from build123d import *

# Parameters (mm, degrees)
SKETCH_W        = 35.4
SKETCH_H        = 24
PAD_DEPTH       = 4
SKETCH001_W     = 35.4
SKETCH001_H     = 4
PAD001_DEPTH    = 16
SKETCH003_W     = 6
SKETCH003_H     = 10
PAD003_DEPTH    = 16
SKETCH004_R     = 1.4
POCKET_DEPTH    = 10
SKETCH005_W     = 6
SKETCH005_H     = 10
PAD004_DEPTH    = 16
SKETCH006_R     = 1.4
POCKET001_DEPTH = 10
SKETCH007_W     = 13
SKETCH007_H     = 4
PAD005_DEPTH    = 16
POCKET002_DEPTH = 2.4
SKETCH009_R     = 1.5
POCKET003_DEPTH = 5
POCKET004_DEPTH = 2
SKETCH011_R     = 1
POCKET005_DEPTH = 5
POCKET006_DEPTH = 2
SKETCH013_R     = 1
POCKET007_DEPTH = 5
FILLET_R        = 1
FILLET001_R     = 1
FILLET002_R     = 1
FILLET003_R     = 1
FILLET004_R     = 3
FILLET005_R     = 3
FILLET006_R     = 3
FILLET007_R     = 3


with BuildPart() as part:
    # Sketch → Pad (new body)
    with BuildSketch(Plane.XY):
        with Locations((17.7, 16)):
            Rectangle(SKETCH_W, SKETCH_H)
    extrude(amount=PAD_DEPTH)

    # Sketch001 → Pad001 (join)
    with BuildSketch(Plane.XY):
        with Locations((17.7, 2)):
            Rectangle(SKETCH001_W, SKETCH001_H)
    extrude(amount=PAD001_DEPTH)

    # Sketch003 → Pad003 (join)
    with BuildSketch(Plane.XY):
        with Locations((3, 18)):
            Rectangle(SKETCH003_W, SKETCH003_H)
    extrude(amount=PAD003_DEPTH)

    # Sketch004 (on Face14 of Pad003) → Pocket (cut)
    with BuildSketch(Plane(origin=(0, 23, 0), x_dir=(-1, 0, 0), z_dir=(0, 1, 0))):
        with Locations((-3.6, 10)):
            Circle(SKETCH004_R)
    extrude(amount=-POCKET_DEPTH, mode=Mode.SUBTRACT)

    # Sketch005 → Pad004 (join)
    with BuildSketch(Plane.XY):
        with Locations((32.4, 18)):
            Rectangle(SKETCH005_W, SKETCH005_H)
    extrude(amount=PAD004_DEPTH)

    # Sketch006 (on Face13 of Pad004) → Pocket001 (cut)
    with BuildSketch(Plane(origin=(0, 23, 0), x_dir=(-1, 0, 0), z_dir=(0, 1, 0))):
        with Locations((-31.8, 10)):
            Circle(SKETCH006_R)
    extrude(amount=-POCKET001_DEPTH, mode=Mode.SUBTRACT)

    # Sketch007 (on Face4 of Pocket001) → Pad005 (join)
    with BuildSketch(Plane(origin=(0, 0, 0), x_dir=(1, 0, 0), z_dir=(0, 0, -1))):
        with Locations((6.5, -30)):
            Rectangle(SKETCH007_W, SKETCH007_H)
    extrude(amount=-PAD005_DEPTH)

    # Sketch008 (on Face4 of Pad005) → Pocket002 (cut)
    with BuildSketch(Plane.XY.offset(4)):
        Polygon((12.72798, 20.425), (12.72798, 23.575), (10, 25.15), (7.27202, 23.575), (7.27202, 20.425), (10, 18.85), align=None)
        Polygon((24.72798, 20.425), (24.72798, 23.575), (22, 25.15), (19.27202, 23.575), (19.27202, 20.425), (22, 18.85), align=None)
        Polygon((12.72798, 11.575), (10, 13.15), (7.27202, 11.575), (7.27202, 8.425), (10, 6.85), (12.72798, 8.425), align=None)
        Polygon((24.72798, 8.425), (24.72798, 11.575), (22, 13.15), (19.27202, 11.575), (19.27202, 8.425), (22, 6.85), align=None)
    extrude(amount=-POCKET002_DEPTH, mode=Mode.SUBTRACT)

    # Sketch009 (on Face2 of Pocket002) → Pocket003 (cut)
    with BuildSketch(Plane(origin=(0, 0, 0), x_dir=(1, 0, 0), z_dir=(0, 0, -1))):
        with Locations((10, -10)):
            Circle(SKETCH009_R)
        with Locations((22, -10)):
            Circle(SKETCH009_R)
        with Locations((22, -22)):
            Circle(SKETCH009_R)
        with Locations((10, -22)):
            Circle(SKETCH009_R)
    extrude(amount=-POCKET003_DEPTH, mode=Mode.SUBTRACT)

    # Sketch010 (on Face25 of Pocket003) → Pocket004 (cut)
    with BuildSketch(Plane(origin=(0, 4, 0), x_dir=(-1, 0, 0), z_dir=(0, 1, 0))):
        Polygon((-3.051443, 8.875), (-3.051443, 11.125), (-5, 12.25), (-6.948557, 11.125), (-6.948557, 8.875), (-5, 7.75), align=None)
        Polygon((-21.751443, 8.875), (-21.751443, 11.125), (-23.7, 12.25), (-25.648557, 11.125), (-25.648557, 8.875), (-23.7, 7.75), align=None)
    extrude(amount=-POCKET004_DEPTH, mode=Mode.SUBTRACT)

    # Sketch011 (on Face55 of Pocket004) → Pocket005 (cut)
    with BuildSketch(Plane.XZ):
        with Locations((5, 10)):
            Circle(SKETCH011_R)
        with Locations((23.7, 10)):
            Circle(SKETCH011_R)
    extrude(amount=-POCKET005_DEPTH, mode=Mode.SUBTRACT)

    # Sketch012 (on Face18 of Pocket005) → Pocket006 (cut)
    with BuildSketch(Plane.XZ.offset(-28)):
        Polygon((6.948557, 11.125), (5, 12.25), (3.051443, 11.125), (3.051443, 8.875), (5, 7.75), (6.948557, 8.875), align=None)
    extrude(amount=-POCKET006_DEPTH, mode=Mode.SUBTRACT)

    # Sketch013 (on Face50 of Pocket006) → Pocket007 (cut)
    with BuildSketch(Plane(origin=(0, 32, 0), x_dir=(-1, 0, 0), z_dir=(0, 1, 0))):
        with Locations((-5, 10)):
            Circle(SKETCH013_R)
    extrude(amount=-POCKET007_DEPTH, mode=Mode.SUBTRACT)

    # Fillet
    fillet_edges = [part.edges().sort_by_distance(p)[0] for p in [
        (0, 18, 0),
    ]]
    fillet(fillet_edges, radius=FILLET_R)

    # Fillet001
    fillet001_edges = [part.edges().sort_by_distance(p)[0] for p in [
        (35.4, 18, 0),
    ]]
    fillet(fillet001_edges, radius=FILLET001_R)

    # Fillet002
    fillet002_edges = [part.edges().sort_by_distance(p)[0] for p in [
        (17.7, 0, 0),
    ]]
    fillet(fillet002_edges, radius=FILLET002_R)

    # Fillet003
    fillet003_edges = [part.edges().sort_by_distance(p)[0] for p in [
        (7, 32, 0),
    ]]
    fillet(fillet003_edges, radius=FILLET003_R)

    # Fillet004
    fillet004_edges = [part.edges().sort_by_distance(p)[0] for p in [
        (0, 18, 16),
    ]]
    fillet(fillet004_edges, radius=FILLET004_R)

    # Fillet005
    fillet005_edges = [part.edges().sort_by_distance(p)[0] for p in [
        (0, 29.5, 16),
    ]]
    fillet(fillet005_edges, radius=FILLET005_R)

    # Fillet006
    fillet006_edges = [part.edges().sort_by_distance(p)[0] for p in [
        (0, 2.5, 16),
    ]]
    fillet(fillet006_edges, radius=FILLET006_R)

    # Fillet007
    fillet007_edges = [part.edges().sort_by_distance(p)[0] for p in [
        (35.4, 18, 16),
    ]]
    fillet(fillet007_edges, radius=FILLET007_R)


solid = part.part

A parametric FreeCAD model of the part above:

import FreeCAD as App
import Part
import Sketcher
Q = App.Units.Quantity


def edges_at(feature, points):
    """Names of the edges that pass closest to the given points."""
    edges = feature.Shape.Edges
    near = lambda p: min(range(len(edges)), key=lambda i: edges[i].distToShape(Part.Vertex(*p))[0])
    return sorted({f"Edge{near(p) + 1}" for p in points})

doc = App.newDocument("Part")
body = doc.addObject("PartDesign::Body", "Body")

# Sketch on XY plane
sketch1 = body.newObject("Sketcher::SketchObject", "Sketch")
sketch1.AttachmentSupport = (doc.getObject("XY_Plane"), [""])
sketch1.MapMode = "FlatFace"
sketch1.addGeometry([
    Part.LineSegment(App.Vector(0, 28, 0), App.Vector(0, 4, 0)),
    Part.LineSegment(App.Vector(0, 4, 0), App.Vector(35, 4, 0)),
    Part.LineSegment(App.Vector(35, 4, 0), App.Vector(35, 28, 0)),
    Part.LineSegment(App.Vector(35, 28, 0), App.Vector(0, 28, 0)),
], False)
sketch1.addConstraint([
    Sketcher.Constraint("Coincident", 0, 2, 1, 1),
    Sketcher.Constraint("Coincident", 1, 2, 2, 1),
    Sketcher.Constraint("Coincident", 2, 2, 3, 1),
    Sketcher.Constraint("Coincident", 3, 2, 0, 1),
    Sketcher.Constraint("Vertical", 0),
    Sketcher.Constraint("Horizontal", 1),
    Sketcher.Constraint("Vertical", 2),
    Sketcher.Constraint("Horizontal", 3),
    Sketcher.Constraint("PointOnObject", 0, 2, -2),
    Sketcher.Constraint("DistanceY", 0, 2, 0, 1, 24.0),
    Sketcher.Constraint("DistanceX", 1, 1, 1, 2, 35.4),
    Sketcher.Constraint("DistanceY", -1, 1, 0, 2, 4.0),
])
pad1 = body.newObject("PartDesign::Pad", "Pad")
pad1.Profile = sketch1
pad1.Length = 4

# Sketch on XY plane
sketch2 = body.newObject("Sketcher::SketchObject", "Sketch001")
sketch2.AttachmentSupport = (doc.getObject("XY_Plane"), [""])
sketch2.MapMode = "FlatFace"
sketch2.addGeometry([
    Part.LineSegment(App.Vector(0, 4, 0), App.Vector(0, 0, 0)),
    Part.LineSegment(App.Vector(0, 0, 0), App.Vector(35.4, 0, 0)),
    Part.LineSegment(App.Vector(35.4, 0, 0), App.Vector(35.4, 4, 0)),
    Part.LineSegment(App.Vector(35.4, 4, 0), App.Vector(0, 4, 0)),
], False)
sketch2.addConstraint([
    Sketcher.Constraint("Coincident", 0, 2, 1, 1),
    Sketcher.Constraint("Coincident", 1, 2, 2, 1),
    Sketcher.Constraint("Coincident", 2, 2, 3, 1),
    Sketcher.Constraint("Coincident", 3, 2, 0, 1),
    Sketcher.Constraint("Vertical", 0),
    Sketcher.Constraint("Horizontal", 1),
    Sketcher.Constraint("Vertical", 2),
    Sketcher.Constraint("Horizontal", 3),
    Sketcher.Constraint("Coincident", 0, 2, -1, 1),
    Sketcher.Constraint("DistanceY", 0, 2, 0, 1, 4.0),
    Sketcher.Constraint("DistanceX", 1, 1, 1, 2, 35.4),
])
pad2 = body.newObject("PartDesign::Pad", "Pad001")
pad2.Profile = sketch2
pad2.Length = 16

# Sketch on XY plane
sketch3 = body.newObject("Sketcher::SketchObject", "Sketch002")
sketch3.AttachmentSupport = (doc.getObject("XY_Plane"), [""])
sketch3.MapMode = "FlatFace"
sketch3.addGeometry([
    Part.LineSegment(App.Vector(0, 23, 0), App.Vector(0, 13, 0)),
    Part.LineSegment(App.Vector(0, 13, 0), App.Vector(6, 13, 0)),
    Part.LineSegment(App.Vector(6, 13, 0), App.Vector(6, 23, 0)),
    Part.LineSegment(App.Vector(6, 23, 0), App.Vector(0, 23, 0)),
], False)
sketch3.addConstraint([
    Sketcher.Constraint("Coincident", 0, 2, 1, 1),
    Sketcher.Constraint("Coincident", 1, 2, 2, 1),
    Sketcher.Constraint("Coincident", 2, 2, 3, 1),
    Sketcher.Constraint("Coincident", 3, 2, 0, 1),
    Sketcher.Constraint("Vertical", 0),
    Sketcher.Constraint("Horizontal", 1),
    Sketcher.Constraint("Vertical", 2),
    Sketcher.Constraint("Horizontal", 3),
    Sketcher.Constraint("PointOnObject", 0, 2, -2),
    Sketcher.Constraint("DistanceX", 1, 1, 1, 2, 6.0),
    Sketcher.Constraint("DistanceY", 0, 2, 0, 1, 10.0),
    Sketcher.Constraint("DistanceY", -1, 1, 0, 2, 13.0),
])
pad3 = body.newObject("PartDesign::Pad", "Pad002")
pad3.Profile = sketch3
pad3.Length = 16

# Sketch on XZ plane
sketch4 = body.newObject("Sketcher::SketchObject", "Sketch003")
sketch4.AttachmentSupport = (doc.getObject("XZ_Plane"), [""])
sketch4.MapMode = "FlatFace"
sketch4.AttachmentOffset = App.Placement(App.Vector(0, 0, -23), App.Rotation())
sketch4.addGeometry(Part.Circle(App.Vector(3.6, 10, 0), App.Vector(0, 0, 1), 1.4), False)
sketch4.addConstraint([
    Sketcher.Constraint("Diameter", 0, 2.8),
    Sketcher.Constraint("DistanceY", -1, 1, 0, 3, 10.0),
    Sketcher.Constraint("DistanceX", -1, 1, 0, 3, 3.6),
])
pocket1 = body.newObject("PartDesign::Pocket", "Pocket")
pocket1.Profile = sketch4
pocket1.Length = 10
pocket1.Reversed = True

# Sketch on XY plane
sketch5 = body.newObject("Sketcher::SketchObject", "Sketch004")
sketch5.AttachmentSupport = (doc.getObject("XY_Plane"), [""])
sketch5.MapMode = "FlatFace"
sketch5.addGeometry([
    Part.LineSegment(App.Vector(29, 23, 0), App.Vector(29, 13, 0)),
    Part.LineSegment(App.Vector(29, 13, 0), App.Vector(35, 13, 0)),
    Part.LineSegment(App.Vector(35, 13, 0), App.Vector(35, 23, 0)),
    Part.LineSegment(App.Vector(35, 23, 0), App.Vector(29, 23, 0)),
], False)
sketch5.addConstraint([
    Sketcher.Constraint("Coincident", 0, 2, 1, 1),
    Sketcher.Constraint("Coincident", 1, 2, 2, 1),
    Sketcher.Constraint("Coincident", 2, 2, 3, 1),
    Sketcher.Constraint("Coincident", 3, 2, 0, 1),
    Sketcher.Constraint("Vertical", 0),
    Sketcher.Constraint("Horizontal", 1),
    Sketcher.Constraint("Vertical", 2),
    Sketcher.Constraint("Horizontal", 3),
    Sketcher.Constraint("DistanceX", 1, 1, 1, 2, 6.0),
    Sketcher.Constraint("DistanceY", 0, 2, 0, 1, 10.0),
    Sketcher.Constraint("DistanceY", -1, 1, 0, 2, 13.0),
    Sketcher.Constraint("DistanceX", -1, 1, 0, 2, 29.4),
])
pad4 = body.newObject("PartDesign::Pad", "Pad003")
pad4.Profile = sketch5
pad4.Length = 16

# Sketch on XZ plane
sketch6 = body.newObject("Sketcher::SketchObject", "Sketch005")
sketch6.AttachmentSupport = (doc.getObject("XZ_Plane"), [""])
sketch6.MapMode = "FlatFace"
sketch6.AttachmentOffset = App.Placement(App.Vector(0, 0, -23), App.Rotation())
sketch6.addGeometry(Part.Circle(App.Vector(31.8, 10, 0), App.Vector(0, 0, 1), 1.4), False)
sketch6.addConstraint([
    Sketcher.Constraint("Diameter", 0, 2.8),
    Sketcher.Constraint("DistanceY", -1, 1, 0, 3, 10.0),
    Sketcher.Constraint("DistanceX", -1, 1, 0, 3, 31.8),
])
pocket2 = body.newObject("PartDesign::Pocket", "Pocket001")
pocket2.Profile = sketch6
pocket2.Length = 10
pocket2.Reversed = True

# Sketch on XY plane
sketch7 = body.newObject("Sketcher::SketchObject", "Sketch006")
sketch7.AttachmentSupport = (doc.getObject("XY_Plane"), [""])
sketch7.MapMode = "FlatFace"
sketch7.addGeometry([
    Part.LineSegment(App.Vector(0, 28, 0), App.Vector(0, 32, 0)),
    Part.LineSegment(App.Vector(0, 32, 0), App.Vector(13, 32, 0)),
    Part.LineSegment(App.Vector(13, 32, 0), App.Vector(13, 28, 0)),
    Part.LineSegment(App.Vector(13, 28, 0), App.Vector(0, 28, 0)),
], False)
sketch7.addConstraint([
    Sketcher.Constraint("Coincident", 0, 2, 1, 1),
    Sketcher.Constraint("Coincident", 1, 2, 2, 1),
    Sketcher.Constraint("Coincident", 2, 2, 3, 1),
    Sketcher.Constraint("Coincident", 3, 2, 0, 1),
    Sketcher.Constraint("Vertical", 0),
    Sketcher.Constraint("Horizontal", 1),
    Sketcher.Constraint("Vertical", 2),
    Sketcher.Constraint("Horizontal", 3),
    Sketcher.Constraint("PointOnObject", 0, 2, -2),
    Sketcher.Constraint("DistanceX", 1, 1, 1, 2, 13.0),
    Sketcher.Constraint("DistanceY", 0, 1, 0, 2, 4.0),
    Sketcher.Constraint("DistanceY", -1, 1, 0, 2, 32.0),
])
pad5 = body.newObject("PartDesign::Pad", "Pad004")
pad5.Profile = sketch7
pad5.Length = 16

# Sketch on XY plane
sketch8 = body.newObject("Sketcher::SketchObject", "Sketch007")
sketch8.AttachmentSupport = (doc.getObject("XY_Plane"), [""])
sketch8.MapMode = "FlatFace"
sketch8.AttachmentOffset = App.Placement(App.Vector(0, 0, 4), App.Rotation())
sketch8.addGeometry([
    Part.LineSegment(App.Vector(12.7, 20.4, 0), App.Vector(12.7, 23.6, 0)),  # 0
    Part.LineSegment(App.Vector(12.7, 23.6, 0), App.Vector(10, 25.1, 0)),  # 1
    Part.LineSegment(App.Vector(10, 25.1, 0), App.Vector(7.3, 23.6, 0)),  # 2
    Part.LineSegment(App.Vector(7.3, 23.6, 0), App.Vector(7.3, 20.4, 0)),  # 3
    Part.LineSegment(App.Vector(7.3, 20.4, 0), App.Vector(10, 18.9, 0)),  # 4
    Part.LineSegment(App.Vector(10, 18.9, 0), App.Vector(12.7, 20.4, 0)),  # 5
    Part.LineSegment(App.Vector(24.7, 20.4, 0), App.Vector(24.7, 23.6, 0)),  # 6
    Part.LineSegment(App.Vector(24.7, 23.6, 0), App.Vector(22, 25.1, 0)),  # 7
    Part.LineSegment(App.Vector(22, 25.1, 0), App.Vector(19.3, 23.6, 0)),  # 8
    Part.LineSegment(App.Vector(19.3, 23.6, 0), App.Vector(19.3, 20.4, 0)),  # 9
    Part.LineSegment(App.Vector(19.3, 20.4, 0), App.Vector(22, 18.9, 0)),  # 10
    Part.LineSegment(App.Vector(22, 18.9, 0), App.Vector(24.7, 20.4, 0)),  # 11
    Part.LineSegment(App.Vector(12.7, 11.6, 0), App.Vector(10, 13.2, 0)),  # 12
    Part.LineSegment(App.Vector(10, 13.2, 0), App.Vector(7.3, 11.6, 0)),  # 13
    Part.LineSegment(App.Vector(7.3, 11.6, 0), App.Vector(7.3, 8.4, 0)),  # 14
    Part.LineSegment(App.Vector(7.3, 8.4, 0), App.Vector(10, 6.8, 0)),  # 15
    Part.LineSegment(App.Vector(10, 6.8, 0), App.Vector(12.7, 8.4, 0)),  # 16
    Part.LineSegment(App.Vector(12.7, 8.4, 0), App.Vector(12.7, 11.6, 0)),  # 17
    Part.LineSegment(App.Vector(24.7, 8.4, 0), App.Vector(24.7, 11.6, 0)),  # 18
    Part.LineSegment(App.Vector(24.7, 11.6, 0), App.Vector(22, 13.2, 0)),  # 19
    Part.LineSegment(App.Vector(22, 13.2, 0), App.Vector(19.3, 11.6, 0)),  # 20
    Part.LineSegment(App.Vector(19.3, 11.6, 0), App.Vector(19.3, 8.4, 0)),  # 21
    Part.LineSegment(App.Vector(19.3, 8.4, 0), App.Vector(22, 6.8, 0)),  # 22
    Part.LineSegment(App.Vector(22, 6.8, 0), App.Vector(24.7, 8.4, 0)),  # 23
], False)
sketch8.addConstraint([
    Sketcher.Constraint("Coincident", 0, 2, 1, 1),
    Sketcher.Constraint("Coincident", 1, 2, 2, 1),
    Sketcher.Constraint("Coincident", 2, 2, 3, 1),
    Sketcher.Constraint("Coincident", 3, 2, 4, 1),
    Sketcher.Constraint("Coincident", 4, 2, 5, 1),
    Sketcher.Constraint("Coincident", 5, 2, 0, 1),
    Sketcher.Constraint("Coincident", 6, 2, 7, 1),
    Sketcher.Constraint("Coincident", 7, 2, 8, 1),
    Sketcher.Constraint("Coincident", 8, 2, 9, 1),
    Sketcher.Constraint("Coincident", 9, 2, 10, 1),
    Sketcher.Constraint("Coincident", 10, 2, 11, 1),
    Sketcher.Constraint("Coincident", 11, 2, 6, 1),
    Sketcher.Constraint("Coincident", 12, 2, 13, 1),
    Sketcher.Constraint("Coincident", 13, 2, 14, 1),
    Sketcher.Constraint("Coincident", 14, 2, 15, 1),
    Sketcher.Constraint("Coincident", 15, 2, 16, 1),
    Sketcher.Constraint("Coincident", 16, 2, 17, 1),
    Sketcher.Constraint("Coincident", 17, 2, 12, 1),
    Sketcher.Constraint("Coincident", 18, 2, 19, 1),
    Sketcher.Constraint("Coincident", 19, 2, 20, 1),
    Sketcher.Constraint("Coincident", 20, 2, 21, 1),
    Sketcher.Constraint("Coincident", 21, 2, 22, 1),
    Sketcher.Constraint("Coincident", 22, 2, 23, 1),
    Sketcher.Constraint("Coincident", 23, 2, 18, 1),
    Sketcher.Constraint("Vertical", 0),
    Sketcher.Constraint("Vertical", 3),
    Sketcher.Constraint("Vertical", 6),
    Sketcher.Constraint("Vertical", 9),
    Sketcher.Constraint("Vertical", 14),
    Sketcher.Constraint("Vertical", 17),
    Sketcher.Constraint("Vertical", 18),
    Sketcher.Constraint("Vertical", 21),
    Sketcher.Constraint("Parallel", 1, 4),
    Sketcher.Constraint("Parallel", 2, 5),
    Sketcher.Constraint("Parallel", 4, 7),
    Sketcher.Constraint("Parallel", 5, 8),
    Sketcher.Constraint("Parallel", 7, 10),
    Sketcher.Constraint("Parallel", 8, 11),
    Sketcher.Constraint("Parallel", 10, 12),
    Sketcher.Constraint("Parallel", 11, 13),
    Sketcher.Constraint("Parallel", 12, 15),
    Sketcher.Constraint("Parallel", 13, 16),
    Sketcher.Constraint("Parallel", 15, 19),
    Sketcher.Constraint("Parallel", 16, 20),
    Sketcher.Constraint("Parallel", 19, 22),
    Sketcher.Constraint("Parallel", 20, 23),
    Sketcher.Constraint("Horizontal", 0, 2, 2, 2),
    Sketcher.Constraint("Horizontal", 3, 2, 5, 2),
    Sketcher.Constraint("Horizontal", 2, 2, 6, 2),
    Sketcher.Constraint("Horizontal", 1, 2, 7, 2),
    Sketcher.Constraint("Horizontal", 6, 2, 8, 2),
    Sketcher.Constraint("Horizontal", 5, 2, 9, 2),
    Sketcher.Constraint("Horizontal", 4, 2, 10, 2),
    Sketcher.Constraint("Horizontal", 14, 2, 16, 2),
    Sketcher.Constraint("Horizontal", 13, 2, 17, 2),
    Sketcher.Constraint("Horizontal", 17, 2, 18, 2),
    Sketcher.Constraint("Horizontal", 12, 2, 19, 2),
    Sketcher.Constraint("Horizontal", 18, 2, 20, 2),
    Sketcher.Constraint("Horizontal", 16, 2, 21, 2),
    Sketcher.Constraint("Horizontal", 15, 2, 22, 2),
    Sketcher.Constraint("Vertical", 1, 2, 4, 2),
    Sketcher.Constraint("Vertical", 4, 2, 12, 2),
    Sketcher.Constraint("Vertical", 3, 2, 13, 2),
    Sketcher.Constraint("Vertical", 11, 2, 18, 2),
    Sketcher.Constraint("Equal", 9, 14),
    Sketcher.Constraint("Angle", 1, Q("150 deg")),
    Sketcher.Constraint("DistanceX", -1, 1, 1, 2, 10.0),
    Sketcher.Constraint("DistanceX", -1, 1, 7, 2, 22.0),
    Sketcher.Constraint("DistanceY", 13, 2, 2, 2, 12.0),
    Sketcher.Constraint("DistanceY", 0, 1, 0, 2, 3.15),
    Sketcher.Constraint("DistanceY", 4, 2, 1, 2, 6.3),
    Sketcher.Constraint("DistanceY", -1, 1, 1, 2, 25.15),
])
pocket3 = body.newObject("PartDesign::Pocket", "Pocket002")
pocket3.Profile = sketch8
pocket3.Length = 2.4

# Sketch on XY plane
sketch9 = body.newObject("Sketcher::SketchObject", "Sketch008")
sketch9.AttachmentSupport = (doc.getObject("XY_Plane"), [""])
sketch9.MapMode = "FlatFace"
sketch9.addGeometry([
    Part.Circle(App.Vector(10, 10, 0), App.Vector(0, 0, 1), 1.5),
    Part.Circle(App.Vector(22, 10, 0), App.Vector(0, 0, 1), 1.5),
    Part.Circle(App.Vector(22, 22, 0), App.Vector(0, 0, 1), 1.5),
    Part.Circle(App.Vector(10, 22, 0), App.Vector(0, 0, 1), 1.5),
], False)
sketch9.addConstraint([
    Sketcher.Constraint("Equal", 0, 1),
    Sketcher.Constraint("Equal", 1, 2),
    Sketcher.Constraint("Equal", 2, 3),
    Sketcher.Constraint("Horizontal", 0, 3, 1, 3),
    Sketcher.Constraint("Horizontal", 2, 3, 3, 3),
    Sketcher.Constraint("Vertical", 1, 3, 2, 3),
    Sketcher.Constraint("Vertical", 0, 3, 3, 3),
    Sketcher.Constraint("Diameter", 0, 3.0),
    Sketcher.Constraint("DistanceX", -1, 1, 0, 3, 10.0),
    Sketcher.Constraint("DistanceY", -1, 1, 0, 3, 10.0),
    Sketcher.Constraint("DistanceX", -1, 1, 1, 3, 22.0),
    Sketcher.Constraint("DistanceY", -1, 1, 2, 3, 22.0),
])
pocket4 = body.newObject("PartDesign::Pocket", "Pocket003")
pocket4.Profile = sketch9
pocket4.Length = 5
pocket4.Reversed = True

# Sketch on XZ plane
sketch10 = body.newObject("Sketcher::SketchObject", "Sketch009")
sketch10.AttachmentSupport = (doc.getObject("XZ_Plane"), [""])
sketch10.MapMode = "FlatFace"
sketch10.AttachmentOffset = App.Placement(App.Vector(0, 0, -4), App.Rotation())
sketch10.addGeometry([
    Part.LineSegment(App.Vector(3.1, 8.9, 0), App.Vector(3.1, 11.1, 0)),  # 0
    Part.LineSegment(App.Vector(3.1, 11.1, 0), App.Vector(5, 12.2, 0)),  # 1
    Part.LineSegment(App.Vector(5, 12.2, 0), App.Vector(6.9, 11.1, 0)),  # 2
    Part.LineSegment(App.Vector(6.9, 11.1, 0), App.Vector(6.9, 8.9, 0)),  # 3
    Part.LineSegment(App.Vector(6.9, 8.9, 0), App.Vector(5, 7.8, 0)),  # 4
    Part.LineSegment(App.Vector(5, 7.8, 0), App.Vector(3.1, 8.9, 0)),  # 5
    Part.LineSegment(App.Vector(21.8, 8.9, 0), App.Vector(21.8, 11.1, 0)),  # 6
    Part.LineSegment(App.Vector(21.8, 11.1, 0), App.Vector(23.7, 12.2, 0)),  # 7
    Part.LineSegment(App.Vector(23.7, 12.2, 0), App.Vector(25.6, 11.1, 0)),  # 8
    Part.LineSegment(App.Vector(25.6, 11.1, 0), App.Vector(25.6, 8.9, 0)),  # 9
    Part.LineSegment(App.Vector(25.6, 8.9, 0), App.Vector(23.7, 7.8, 0)),  # 10
    Part.LineSegment(App.Vector(23.7, 7.8, 0), App.Vector(21.8, 8.9, 0)),  # 11
], False)
sketch10.addConstraint([
    Sketcher.Constraint("Coincident", 0, 2, 1, 1),
    Sketcher.Constraint("Coincident", 1, 2, 2, 1),
    Sketcher.Constraint("Coincident", 2, 2, 3, 1),
    Sketcher.Constraint("Coincident", 3, 2, 4, 1),
    Sketcher.Constraint("Coincident", 4, 2, 5, 1),
    Sketcher.Constraint("Coincident", 5, 2, 0, 1),
    Sketcher.Constraint("Coincident", 6, 2, 7, 1),
    Sketcher.Constraint("Coincident", 7, 2, 8, 1),
    Sketcher.Constraint("Coincident", 8, 2, 9, 1),
    Sketcher.Constraint("Coincident", 9, 2, 10, 1),
    Sketcher.Constraint("Coincident", 10, 2, 11, 1),
    Sketcher.Constraint("Coincident", 11, 2, 6, 1),
    Sketcher.Constraint("Vertical", 0),
    Sketcher.Constraint("Vertical", 3),
    Sketcher.Constraint("Vertical", 6),
    Sketcher.Constraint("Vertical", 9),
    Sketcher.Constraint("Parallel", 1, 4),
    Sketcher.Constraint("Parallel", 2, 5),
    Sketcher.Constraint("Parallel", 4, 7),
    Sketcher.Constraint("Parallel", 5, 8),
    Sketcher.Constraint("Parallel", 7, 10),
    Sketcher.Constraint("Parallel", 8, 11),
    Sketcher.Constraint("Horizontal", 0, 2, 2, 2),
    Sketcher.Constraint("Horizontal", 3, 2, 5, 2),
    Sketcher.Constraint("Horizontal", 2, 2, 6, 2),
    Sketcher.Constraint("Horizontal", 1, 2, 7, 2),
    Sketcher.Constraint("Horizontal", 6, 2, 8, 2),
    Sketcher.Constraint("Horizontal", 5, 2, 9, 2),
    Sketcher.Constraint("Horizontal", 4, 2, 10, 2),
    Sketcher.Constraint("Vertical", 1, 2, 4, 2),
    Sketcher.Constraint("Angle", 1, Q("30.000002 deg")),
    Sketcher.Constraint("DistanceX", -1, 1, 1, 2, 5.0),
    Sketcher.Constraint("DistanceY", 0, 1, 0, 2, 2.25),
    Sketcher.Constraint("DistanceX", -1, 1, 7, 2, 23.7),
    Sketcher.Constraint("DistanceY", 4, 2, 1, 2, 4.5),
    Sketcher.Constraint("DistanceY", -1, 1, 1, 2, 12.25),
])
pocket5 = body.newObject("PartDesign::Pocket", "Pocket004")
pocket5.Profile = sketch10
pocket5.Length = 2
pocket5.Reversed = True

# Sketch on XZ plane
sketch11 = body.newObject("Sketcher::SketchObject", "Sketch010")
sketch11.AttachmentSupport = (doc.getObject("XZ_Plane"), [""])
sketch11.MapMode = "FlatFace"
sketch11.addGeometry([
    Part.Circle(App.Vector(5, 10, 0), App.Vector(0, 0, 1), 1),
    Part.Circle(App.Vector(23.7, 10, 0), App.Vector(0, 0, 1), 1),
], False)
sketch11.addConstraint([
    Sketcher.Constraint("Equal", 0, 1),
    Sketcher.Constraint("Horizontal", 0, 3, 1, 3),
    Sketcher.Constraint("Diameter", 0, 2.0),
    Sketcher.Constraint("DistanceX", -1, 1, 0, 3, 5.0),
    Sketcher.Constraint("DistanceY", -1, 1, 0, 3, 10.0),
    Sketcher.Constraint("DistanceX", -1, 1, 1, 3, 23.7),
])
pocket6 = body.newObject("PartDesign::Pocket", "Pocket005")
pocket6.Profile = sketch11
pocket6.Length = 5

# Sketch on XZ plane
sketch12 = body.newObject("Sketcher::SketchObject", "Sketch011")
sketch12.AttachmentSupport = (doc.getObject("XZ_Plane"), [""])
sketch12.MapMode = "FlatFace"
sketch12.AttachmentOffset = App.Placement(App.Vector(0, 0, -28), App.Rotation())
sketch12.addGeometry([
    Part.LineSegment(App.Vector(6.9, 11.1, 0), App.Vector(5, 12.2, 0)),  # 0
    Part.LineSegment(App.Vector(5, 12.2, 0), App.Vector(3.1, 11.1, 0)),  # 1
    Part.LineSegment(App.Vector(3.1, 11.1, 0), App.Vector(3.1, 8.9, 0)),  # 2
    Part.LineSegment(App.Vector(3.1, 8.9, 0), App.Vector(5, 7.8, 0)),  # 3
    Part.LineSegment(App.Vector(5, 7.8, 0), App.Vector(6.9, 8.9, 0)),  # 4
    Part.LineSegment(App.Vector(6.9, 8.9, 0), App.Vector(6.9, 11.1, 0)),  # 5
], False)
sketch12.addConstraint([
    Sketcher.Constraint("Coincident", 0, 2, 1, 1),
    Sketcher.Constraint("Coincident", 1, 2, 2, 1),
    Sketcher.Constraint("Coincident", 2, 2, 3, 1),
    Sketcher.Constraint("Coincident", 3, 2, 4, 1),
    Sketcher.Constraint("Coincident", 4, 2, 5, 1),
    Sketcher.Constraint("Coincident", 5, 2, 0, 1),
    Sketcher.Constraint("Vertical", 2),
    Sketcher.Constraint("Vertical", 5),
    Sketcher.Constraint("Parallel", 0, 3),
    Sketcher.Constraint("Parallel", 1, 4),
    Sketcher.Constraint("Horizontal", 2, 2, 4, 2),
    Sketcher.Constraint("Horizontal", 1, 2, 5, 2),
    Sketcher.Constraint("Vertical", 0, 2, 3, 2),
    Sketcher.Constraint("Angle", 0, Q("149.999998 deg")),
    Sketcher.Constraint("DistanceX", -1, 1, 0, 2, 5.0),
    Sketcher.Constraint("DistanceY", 2, 2, 2, 1, 2.25),
    Sketcher.Constraint("DistanceY", 3, 2, 0, 2, 4.5),
    Sketcher.Constraint("DistanceY", -1, 1, 0, 2, 12.25),
])
pocket7 = body.newObject("PartDesign::Pocket", "Pocket006")
pocket7.Profile = sketch12
pocket7.Length = 2

# Sketch on XZ plane
sketch13 = body.newObject("Sketcher::SketchObject", "Sketch012")
sketch13.AttachmentSupport = (doc.getObject("XZ_Plane"), [""])
sketch13.MapMode = "FlatFace"
sketch13.AttachmentOffset = App.Placement(App.Vector(0, 0, -32), App.Rotation())
sketch13.addGeometry(Part.Circle(App.Vector(5, 10, 0), App.Vector(0, 0, 1), 1), False)
sketch13.addConstraint([
    Sketcher.Constraint("Diameter", 0, 2.0),
    Sketcher.Constraint("DistanceX", -1, 1, 0, 3, 5.0),
    Sketcher.Constraint("DistanceY", -1, 1, 0, 3, 10.0),
])
pocket8 = body.newObject("PartDesign::Pocket", "Pocket007")
pocket8.Profile = sketch13
pocket8.Length = 5
pocket8.Reversed = True
doc.recompute()

fillet = body.newObject("PartDesign::Fillet", "Fillet")
fillet.Base = (pocket8, edges_at(pocket8, [(0, 16, 0)]))
fillet.Radius = 1
doc.recompute()

fillet2 = body.newObject("PartDesign::Fillet", "Fillet001")
fillet2.Base = (fillet, edges_at(fillet, [(35.4, 14, 0)]))
fillet2.Radius = 1
doc.recompute()

fillet3 = body.newObject("PartDesign::Fillet", "Fillet002")
fillet3.Base = (fillet2, edges_at(fillet2, [(17.7, 0, 0)]))
fillet3.Radius = 1
doc.recompute()

fillet4 = body.newObject("PartDesign::Fillet", "Fillet003")
fillet4.Base = (fillet3, edges_at(fillet3, [(7, 32, 0)]))
fillet4.Radius = 1
doc.recompute()

fillet5 = body.newObject("PartDesign::Fillet", "Fillet004")
fillet5.Base = (fillet4, edges_at(fillet4, [(0, 18, 16)]))
fillet5.Radius = 3
doc.recompute()

fillet6 = body.newObject("PartDesign::Fillet", "Fillet005")
fillet6.Base = (fillet5, edges_at(fillet5, [(0, 29.5, 16)]))
fillet6.Radius = 3
doc.recompute()

fillet7 = body.newObject("PartDesign::Fillet", "Fillet006")
fillet7.Base = (fillet6, edges_at(fillet6, [(0, 2.5, 16)]))
fillet7.Radius = 3
doc.recompute()

fillet8 = body.newObject("PartDesign::Fillet", "Fillet007")
fillet8.Base = (fillet7, edges_at(fillet7, [(35.4, 18, 16)]))
fillet8.Radius = 3

doc.recompute()
